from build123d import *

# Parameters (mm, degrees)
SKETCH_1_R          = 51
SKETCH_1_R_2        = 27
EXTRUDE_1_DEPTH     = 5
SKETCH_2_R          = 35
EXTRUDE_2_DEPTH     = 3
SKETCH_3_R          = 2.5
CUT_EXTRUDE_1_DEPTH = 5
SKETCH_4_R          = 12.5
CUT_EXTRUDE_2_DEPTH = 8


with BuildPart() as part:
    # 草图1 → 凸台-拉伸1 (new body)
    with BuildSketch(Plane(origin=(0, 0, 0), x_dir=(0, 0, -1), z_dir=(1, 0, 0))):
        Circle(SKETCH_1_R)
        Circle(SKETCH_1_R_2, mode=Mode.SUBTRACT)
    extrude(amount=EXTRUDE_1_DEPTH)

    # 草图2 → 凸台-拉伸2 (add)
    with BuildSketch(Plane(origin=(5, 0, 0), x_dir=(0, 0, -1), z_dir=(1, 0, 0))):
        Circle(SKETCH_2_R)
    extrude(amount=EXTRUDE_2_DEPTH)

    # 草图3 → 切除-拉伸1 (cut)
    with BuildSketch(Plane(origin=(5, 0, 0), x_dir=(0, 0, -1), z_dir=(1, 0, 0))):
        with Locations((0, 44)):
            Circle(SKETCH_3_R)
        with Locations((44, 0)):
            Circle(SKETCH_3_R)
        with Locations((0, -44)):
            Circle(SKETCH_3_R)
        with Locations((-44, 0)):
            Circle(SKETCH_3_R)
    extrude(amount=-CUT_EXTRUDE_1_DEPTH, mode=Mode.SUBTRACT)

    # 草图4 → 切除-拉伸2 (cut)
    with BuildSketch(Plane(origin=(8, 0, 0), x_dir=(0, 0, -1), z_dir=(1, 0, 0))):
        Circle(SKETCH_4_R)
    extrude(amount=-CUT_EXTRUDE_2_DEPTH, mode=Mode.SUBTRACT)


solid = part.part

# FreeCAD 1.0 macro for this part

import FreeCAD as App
import Part
import Sketcher
from FreeCAD import Vector
Q = App.Units.Quantity

doc = App.newDocument("Part")
params = doc.addObject("Spreadsheet::Sheet", "Params")
for row, (alias, value) in enumerate([
    ("sketch1_diameter", "102 mm"),
    ("sketch1_diameter2", "54 mm"),
    ("pad1_length", "5 mm"),
    ("sketch2_diameter", "70 mm"),
    ("pad2_length", "3 mm"),
    ("sketch3_diameter", "5 mm"),
    ("pocket1_length", "5 mm"),
    ("sketch4_diameter", "25 mm"),
    ("pocket2_length", "8 mm"),
], start=1):
    params.set(f"A{row}", alias)
    params.set(f"B{row}", "=" + value)
    params.setAlias(f"B{row}", alias)

body = doc.addObject("PartDesign::Body", "Body")

sketch1 = body.newObject("Sketcher::SketchObject", "Sketch")
sketch1.AttachmentSupport = (doc.getObject("YZ_Plane"), [""])
sketch1.MapMode = "FlatFace"
sketch1.addGeometry([
    Part.Circle(Vector(0, 0, 0), Vector(0, 0, 1), 51),
    Part.Circle(Vector(0, 0, 0), Vector(0, 0, 1), 27),
], False)
sketch1.addConstraint([
    Sketcher.Constraint("Coincident", 0, 3, -1, 1),
    Sketcher.Constraint("Coincident", 1, 3, -1, 1),
    Sketcher.Constraint("Diameter", 0, Q("102 mm")),
    Sketcher.Constraint("Diameter", 1, Q("54 mm")),
])
sketch1.setExpression("Constraints[2]", "Params.sketch1_diameter")
sketch1.setExpression("Constraints[3]", "Params.sketch1_diameter2")
pad1 = body.newObject("PartDesign::Pad", "Pad")
pad1.Profile = sketch1
pad1.setExpression("Length", "Params.pad1_length")

sketch2 = body.newObject("Sketcher::SketchObject", "Sketch001")
sketch2.AttachmentSupport = (doc.getObject("YZ_Plane"), [""])
sketch2.MapMode = "FlatFace"
sketch2.AttachmentOffset = App.Placement(Vector(0, 0, 5), App.Rotation())
sketch2.addGeometry(Part.Circle(Vector(0, 0, 0), Vector(0, 0, 1), 35), False)
sketch2.addConstraint([
    Sketcher.Constraint("Coincident", 0, 3, -1, 1),
    Sketcher.Constraint("Diameter", 0, Q("70 mm")),
])
sketch2.setExpression("Constraints[1]", "Params.sketch2_diameter")
pad2 = body.newObject("PartDesign::Pad", "Pad001")
pad2.Profile = sketch2
pad2.setExpression("Length", "Params.pad2_length")

sketch3 = body.newObject("Sketcher::SketchObject", "Sketch002")
sketch3.AttachmentSupport = (doc.getObject("YZ_Plane"), [""])
sketch3.MapMode = "FlatFace"
sketch3.AttachmentOffset = App.Placement(Vector(0, 0, 5), App.Rotation())
sketch3.addGeometry([
    Part.Circle(Vector(44, 0, 0), Vector(0, 0, 1), 2.5),
    Part.Circle(Vector(0, -44, 0), Vector(0, 0, 1), 2.5),
    Part.Circle(Vector(-44, 0, 0), Vector(0, 0, 1), 2.5),
    Part.Circle(Vector(0, 44, 0), Vector(0, 0, 1), 2.5),
], False)
sketch3.addConstraint([
    Sketcher.Constraint("Equal", 0, 1),
    Sketcher.Constraint("Equal", 1, 2),
    Sketcher.Constraint("Equal", 2, 3),
    Sketcher.Constraint("Symmetric", 0, 3, 2, 3, -1, 1),
    Sketcher.Constraint("Symmetric", 1, 3, 3, 3, -1, 1),
    Sketcher.Constraint("PointOnObject", 0, 3, -1),
    Sketcher.Constraint("PointOnObject", 1, 3, -2),
    Sketcher.Constraint("Diameter", 0, Q("5 mm")),
    Sketcher.Constraint("DistanceX", -1, 1, 0, 3, Q("44 mm")),
    Sketcher.Constraint("DistanceY", 1, 3, -1, 1, Q("44 mm")),
])
sketch3.setExpression("Constraints[7]", "Params.sketch3_diameter")
pocket1 = body.newObject("PartDesign::Pocket", "Pocket")
pocket1.Profile = sketch3
pocket1.setExpression("Length", "Params.pocket1_length")

sketch4 = body.newObject("Sketcher::SketchObject", "Sketch003")
sketch4.AttachmentSupport = (doc.getObject("YZ_Plane"), [""])
sketch4.MapMode = "FlatFace"
sketch4.AttachmentOffset = App.Placement(Vector(0, 0, 8), App.Rotation())
sketch4.addGeometry(Part.Circle(Vector(0, 0, 0), Vector(0, 0, 1), 12.5), False)
sketch4.addConstraint([
    Sketcher.Constraint("Coincident", 0, 3, -1, 1),
    Sketcher.Constraint("Diameter", 0, Q("25 mm")),
])
sketch4.setExpression("Constraints[1]", "Params.sketch4_diameter")
pocket2 = body.newObject("PartDesign::Pocket", "Pocket001")
pocket2.Profile = sketch4
pocket2.setExpression("Length", "Params.pocket2_length")

doc.recompute()
